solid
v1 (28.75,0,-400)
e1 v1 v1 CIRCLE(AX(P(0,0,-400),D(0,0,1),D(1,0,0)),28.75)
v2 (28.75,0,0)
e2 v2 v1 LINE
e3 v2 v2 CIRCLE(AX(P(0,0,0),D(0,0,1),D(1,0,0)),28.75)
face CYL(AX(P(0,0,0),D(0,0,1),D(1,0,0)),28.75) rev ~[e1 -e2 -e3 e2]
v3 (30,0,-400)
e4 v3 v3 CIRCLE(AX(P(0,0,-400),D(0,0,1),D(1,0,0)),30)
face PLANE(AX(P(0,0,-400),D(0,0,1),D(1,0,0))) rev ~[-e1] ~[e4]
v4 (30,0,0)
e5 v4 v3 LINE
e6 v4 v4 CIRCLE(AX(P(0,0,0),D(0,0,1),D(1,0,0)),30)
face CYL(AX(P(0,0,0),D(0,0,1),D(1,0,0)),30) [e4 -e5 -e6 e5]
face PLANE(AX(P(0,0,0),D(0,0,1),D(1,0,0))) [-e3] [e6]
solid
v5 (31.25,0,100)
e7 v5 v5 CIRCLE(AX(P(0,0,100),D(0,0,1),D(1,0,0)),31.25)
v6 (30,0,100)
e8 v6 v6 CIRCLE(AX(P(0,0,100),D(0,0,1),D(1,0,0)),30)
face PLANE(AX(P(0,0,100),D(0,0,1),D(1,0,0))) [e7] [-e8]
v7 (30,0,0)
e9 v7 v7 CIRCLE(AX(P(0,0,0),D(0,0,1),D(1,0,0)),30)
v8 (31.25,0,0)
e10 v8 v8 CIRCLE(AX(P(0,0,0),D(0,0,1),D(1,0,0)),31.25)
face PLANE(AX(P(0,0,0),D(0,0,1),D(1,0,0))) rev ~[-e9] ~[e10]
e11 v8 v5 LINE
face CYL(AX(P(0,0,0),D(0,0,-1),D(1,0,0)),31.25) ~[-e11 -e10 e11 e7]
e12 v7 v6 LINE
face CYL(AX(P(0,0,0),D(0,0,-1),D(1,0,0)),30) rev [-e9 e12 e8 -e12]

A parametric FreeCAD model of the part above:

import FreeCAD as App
import Part
import Sketcher

V = App.Vector

doc = App.newDocument("Part")
params = doc.addObject("Spreadsheet::Sheet", "Params")
for row, (alias, value) in enumerate([
    ("sketch1_diameter", "60 mm"),
    ("sketch1_diameter2", "62.5 mm"),
    ("pad1_length", "100 mm"),
    ("sketch2_diameter", "60 mm"),
    ("sketch2_diameter2", "57.5 mm"),
    ("pad2_length", "400 mm"),
], start=1):
    params.set(f"A{row}", alias)
    params.set(f"B{row}", "=" + value)
    params.setAlias(f"B{row}", alias)

body = doc.addObject("PartDesign::Body", "Body")

# Sketch on XY plane
sketch1 = body.newObject("Sketcher::SketchObject", "Sketch")
sketch1.AttachmentSupport = (doc.getObject("XY_Plane"), [""])
sketch1.MapMode = "FlatFace"
sketch1.addGeometry(Part.Circle(V(0, 0, 0), V(0, 0, 1), 31), False)
sketch1.addGeometry(Part.Circle(V(0, 0, 0), V(0, 0, 1), 30), False)
sketch1.addConstraint(Sketcher.Constraint("Coincident", 0, 3, -1, 1))
sketch1.addConstraint(Sketcher.Constraint("Coincident", 1, 3, -1, 1))
sketch1.addConstraint(Sketcher.Constraint("Diameter", 1, 60.0))
sketch1.addConstraint(Sketcher.Constraint("Diameter", 0, 62.5))
sketch1.setExpression("Constraints[2]", "Params.sketch1_diameter")
sketch1.setExpression("Constraints[3]", "Params.sketch1_diameter2")
pad1 = body.newObject("PartDesign::Pad", "Pad")
pad1.Profile = sketch1
pad1.setExpression("Length", "Params.pad1_length")
body2 = doc.addObject("PartDesign::Body", "Body001")

# Sketch on XY plane
sketch2 = body2.newObject("Sketcher::SketchObject", "Sketch001")
sketch2.AttachmentSupport = (doc.getObject("XY_Plane001"), [""])
sketch2.MapMode = "FlatFace"
sketch2.addGeometry(Part.Circle(V(0, 0, 0), V(0, 0, 1), 30), False)
sketch2.addGeometry(Part.Circle(V(0, 0, 0), V(0, 0, 1), 29), False)
sketch2.addConstraint(Sketcher.Constraint("Coincident", 0, 3, -1, 1))
sketch2.addConstraint(Sketcher.Constraint("Coincident", 1, 3, -1, 1))
sketch2.addConstraint(Sketcher.Constraint("Diameter", 0, 60.0))
sketch2.addConstraint(Sketcher.Constraint("Diameter", 1, 57.5))
sketch2.setExpression("Constraints[2]", "Params.sketch2_diameter")
sketch2.setExpression("Constraints[3]", "Params.sketch2_diameter2")
pad2 = body2.newObject("PartDesign::Pad", "Pad001")
pad2.Profile = sketch2
pad2.setExpression("Length", "Params.pad2_length")
pad2.Reversed = True

doc.recompute()
